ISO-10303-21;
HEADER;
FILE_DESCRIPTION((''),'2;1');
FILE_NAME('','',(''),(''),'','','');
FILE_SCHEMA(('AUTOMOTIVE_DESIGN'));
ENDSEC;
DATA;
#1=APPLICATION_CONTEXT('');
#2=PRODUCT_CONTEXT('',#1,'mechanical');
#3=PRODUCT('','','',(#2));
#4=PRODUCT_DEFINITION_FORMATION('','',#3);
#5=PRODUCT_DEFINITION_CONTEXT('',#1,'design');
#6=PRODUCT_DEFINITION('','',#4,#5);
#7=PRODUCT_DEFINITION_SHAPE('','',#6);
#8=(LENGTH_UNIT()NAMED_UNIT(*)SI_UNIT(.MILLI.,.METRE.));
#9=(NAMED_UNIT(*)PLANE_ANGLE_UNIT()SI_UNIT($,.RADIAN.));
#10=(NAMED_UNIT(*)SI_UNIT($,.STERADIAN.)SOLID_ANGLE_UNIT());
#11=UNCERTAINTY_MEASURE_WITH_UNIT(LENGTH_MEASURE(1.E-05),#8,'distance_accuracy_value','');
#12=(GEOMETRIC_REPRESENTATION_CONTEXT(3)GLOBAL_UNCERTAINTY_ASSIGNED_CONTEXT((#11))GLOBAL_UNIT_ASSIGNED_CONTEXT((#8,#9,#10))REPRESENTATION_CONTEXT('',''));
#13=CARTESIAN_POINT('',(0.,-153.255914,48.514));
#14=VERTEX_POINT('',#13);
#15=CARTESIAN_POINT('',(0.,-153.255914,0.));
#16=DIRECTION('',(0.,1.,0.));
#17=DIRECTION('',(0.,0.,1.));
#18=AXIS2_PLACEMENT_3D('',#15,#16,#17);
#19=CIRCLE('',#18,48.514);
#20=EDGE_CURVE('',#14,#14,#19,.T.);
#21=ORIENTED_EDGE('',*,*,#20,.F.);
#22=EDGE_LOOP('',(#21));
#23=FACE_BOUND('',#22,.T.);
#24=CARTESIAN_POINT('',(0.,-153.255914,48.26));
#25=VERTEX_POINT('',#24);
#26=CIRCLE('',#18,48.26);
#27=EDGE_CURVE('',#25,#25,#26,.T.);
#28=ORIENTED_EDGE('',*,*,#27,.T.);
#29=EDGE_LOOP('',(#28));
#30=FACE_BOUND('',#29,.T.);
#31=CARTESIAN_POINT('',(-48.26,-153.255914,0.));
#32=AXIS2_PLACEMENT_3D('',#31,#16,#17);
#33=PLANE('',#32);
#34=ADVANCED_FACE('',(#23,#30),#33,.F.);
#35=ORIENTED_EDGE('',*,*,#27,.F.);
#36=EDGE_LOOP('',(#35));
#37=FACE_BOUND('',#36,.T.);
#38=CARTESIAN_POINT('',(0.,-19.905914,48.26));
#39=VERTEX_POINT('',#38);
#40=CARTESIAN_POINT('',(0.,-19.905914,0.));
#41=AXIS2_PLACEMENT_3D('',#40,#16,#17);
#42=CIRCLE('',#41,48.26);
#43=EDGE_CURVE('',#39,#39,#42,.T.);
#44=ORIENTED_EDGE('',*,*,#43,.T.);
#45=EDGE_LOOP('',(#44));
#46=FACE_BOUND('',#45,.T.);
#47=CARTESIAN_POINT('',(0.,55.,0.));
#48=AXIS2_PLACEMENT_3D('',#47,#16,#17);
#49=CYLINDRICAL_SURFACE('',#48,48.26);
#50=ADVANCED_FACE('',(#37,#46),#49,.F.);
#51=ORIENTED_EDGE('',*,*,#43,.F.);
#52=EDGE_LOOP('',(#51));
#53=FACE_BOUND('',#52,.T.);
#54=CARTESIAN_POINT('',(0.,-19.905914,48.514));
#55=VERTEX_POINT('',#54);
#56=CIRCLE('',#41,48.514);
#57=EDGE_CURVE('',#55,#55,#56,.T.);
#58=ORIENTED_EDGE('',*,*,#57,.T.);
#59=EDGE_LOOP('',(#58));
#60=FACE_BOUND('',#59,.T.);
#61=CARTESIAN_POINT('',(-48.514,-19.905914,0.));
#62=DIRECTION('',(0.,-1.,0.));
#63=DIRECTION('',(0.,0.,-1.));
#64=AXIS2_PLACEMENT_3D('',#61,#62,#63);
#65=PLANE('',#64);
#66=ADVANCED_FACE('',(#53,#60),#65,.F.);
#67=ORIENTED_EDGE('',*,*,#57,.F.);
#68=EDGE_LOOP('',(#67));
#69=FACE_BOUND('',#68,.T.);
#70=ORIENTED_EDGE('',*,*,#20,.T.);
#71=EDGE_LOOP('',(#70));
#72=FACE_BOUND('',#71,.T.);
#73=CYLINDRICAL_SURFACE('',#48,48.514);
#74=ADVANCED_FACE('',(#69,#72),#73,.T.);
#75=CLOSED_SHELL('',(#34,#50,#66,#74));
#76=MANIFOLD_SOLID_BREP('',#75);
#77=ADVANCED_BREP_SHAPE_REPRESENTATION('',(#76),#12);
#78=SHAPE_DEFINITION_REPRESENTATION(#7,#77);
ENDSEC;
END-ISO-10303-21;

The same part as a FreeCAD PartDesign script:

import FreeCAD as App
import Part
import Sketcher
from FreeCAD import Vector
Q = App.Units.Quantity


def add_polygon(sketch, points):
    """Adds a closed chain of lines whose ends are joined by coincident constraints."""
    first, n = sketch.GeometryCount, len(points)
    for a, b in zip(points, points[1:] + points[:1]):
        sketch.addGeometry(Part.LineSegment(App.Vector(*a, 0), App.Vector(*b, 0)), False)
    for i in range(n):
        sketch.addConstraint(Sketcher.Constraint("Coincident", first + i, 2, first + (i + 1) % n, 1))

doc = App.newDocument("Part")
params = doc.addObject("Spreadsheet::Sheet", "Params")
for row, (alias, value) in enumerate([
    ("sketch1_width", "0.01 in"),
    ("sketch1_height", "5.25 in"),
    ("revolution_angle", "360 deg"),
], start=1):
    params.set(f"A{row}", alias)
    params.set(f"B{row}", "=" + value)
    params.setAlias(f"B{row}", alias)

body = doc.addObject("PartDesign::Body", "Body")

# Sketch on XY plane
sketch1 = doc.addObject("Sketcher::SketchObject", "Sketch")
body.addObject(sketch1)
sketch1.AttachmentSupport = (doc.XY_Plane, [""])
sketch1.MapMode = "FlatFace"
add_polygon(sketch1, [(-48.51, -19.91), (-48.51, -153.26), (-48.26, -153.26), (-48.26, -19.91)])  # lines 0-3
sketch1.addConstraint([
    Sketcher.Constraint("Vertical", 0),
    Sketcher.Constraint("Horizontal", 1),
    Sketcher.Constraint("Vertical", 2),
    Sketcher.Constraint("Horizontal", 3),
    Sketcher.Constraint("DistanceX", 1, 1, 1, 2, Q("0.01 in")),
    Sketcher.Constraint("DistanceY", 0, 2, 0, 1, Q("5.25 in")),
    Sketcher.Constraint("DistanceX", 1, 2, -1, 1, Q("1.9 in")),
    Sketcher.Constraint("DistanceY", 0, 2, -1, 1, Q("153.255914 mm")),
])
sketch1.setExpression("Constraints[8]", "Params.sketch1_width")
sketch1.setExpression("Constraints[9]", "Params.sketch1_height")
revolution = doc.addObject("PartDesign::Revolution", "Revolution")
body.addObject(revolution)
revolution.Profile = sketch1
revolution.ReferenceAxis = (sketch1, ["V_Axis"])
revolution.setExpression("Angle", "Params.revolution_angle")

doc.recompute()
